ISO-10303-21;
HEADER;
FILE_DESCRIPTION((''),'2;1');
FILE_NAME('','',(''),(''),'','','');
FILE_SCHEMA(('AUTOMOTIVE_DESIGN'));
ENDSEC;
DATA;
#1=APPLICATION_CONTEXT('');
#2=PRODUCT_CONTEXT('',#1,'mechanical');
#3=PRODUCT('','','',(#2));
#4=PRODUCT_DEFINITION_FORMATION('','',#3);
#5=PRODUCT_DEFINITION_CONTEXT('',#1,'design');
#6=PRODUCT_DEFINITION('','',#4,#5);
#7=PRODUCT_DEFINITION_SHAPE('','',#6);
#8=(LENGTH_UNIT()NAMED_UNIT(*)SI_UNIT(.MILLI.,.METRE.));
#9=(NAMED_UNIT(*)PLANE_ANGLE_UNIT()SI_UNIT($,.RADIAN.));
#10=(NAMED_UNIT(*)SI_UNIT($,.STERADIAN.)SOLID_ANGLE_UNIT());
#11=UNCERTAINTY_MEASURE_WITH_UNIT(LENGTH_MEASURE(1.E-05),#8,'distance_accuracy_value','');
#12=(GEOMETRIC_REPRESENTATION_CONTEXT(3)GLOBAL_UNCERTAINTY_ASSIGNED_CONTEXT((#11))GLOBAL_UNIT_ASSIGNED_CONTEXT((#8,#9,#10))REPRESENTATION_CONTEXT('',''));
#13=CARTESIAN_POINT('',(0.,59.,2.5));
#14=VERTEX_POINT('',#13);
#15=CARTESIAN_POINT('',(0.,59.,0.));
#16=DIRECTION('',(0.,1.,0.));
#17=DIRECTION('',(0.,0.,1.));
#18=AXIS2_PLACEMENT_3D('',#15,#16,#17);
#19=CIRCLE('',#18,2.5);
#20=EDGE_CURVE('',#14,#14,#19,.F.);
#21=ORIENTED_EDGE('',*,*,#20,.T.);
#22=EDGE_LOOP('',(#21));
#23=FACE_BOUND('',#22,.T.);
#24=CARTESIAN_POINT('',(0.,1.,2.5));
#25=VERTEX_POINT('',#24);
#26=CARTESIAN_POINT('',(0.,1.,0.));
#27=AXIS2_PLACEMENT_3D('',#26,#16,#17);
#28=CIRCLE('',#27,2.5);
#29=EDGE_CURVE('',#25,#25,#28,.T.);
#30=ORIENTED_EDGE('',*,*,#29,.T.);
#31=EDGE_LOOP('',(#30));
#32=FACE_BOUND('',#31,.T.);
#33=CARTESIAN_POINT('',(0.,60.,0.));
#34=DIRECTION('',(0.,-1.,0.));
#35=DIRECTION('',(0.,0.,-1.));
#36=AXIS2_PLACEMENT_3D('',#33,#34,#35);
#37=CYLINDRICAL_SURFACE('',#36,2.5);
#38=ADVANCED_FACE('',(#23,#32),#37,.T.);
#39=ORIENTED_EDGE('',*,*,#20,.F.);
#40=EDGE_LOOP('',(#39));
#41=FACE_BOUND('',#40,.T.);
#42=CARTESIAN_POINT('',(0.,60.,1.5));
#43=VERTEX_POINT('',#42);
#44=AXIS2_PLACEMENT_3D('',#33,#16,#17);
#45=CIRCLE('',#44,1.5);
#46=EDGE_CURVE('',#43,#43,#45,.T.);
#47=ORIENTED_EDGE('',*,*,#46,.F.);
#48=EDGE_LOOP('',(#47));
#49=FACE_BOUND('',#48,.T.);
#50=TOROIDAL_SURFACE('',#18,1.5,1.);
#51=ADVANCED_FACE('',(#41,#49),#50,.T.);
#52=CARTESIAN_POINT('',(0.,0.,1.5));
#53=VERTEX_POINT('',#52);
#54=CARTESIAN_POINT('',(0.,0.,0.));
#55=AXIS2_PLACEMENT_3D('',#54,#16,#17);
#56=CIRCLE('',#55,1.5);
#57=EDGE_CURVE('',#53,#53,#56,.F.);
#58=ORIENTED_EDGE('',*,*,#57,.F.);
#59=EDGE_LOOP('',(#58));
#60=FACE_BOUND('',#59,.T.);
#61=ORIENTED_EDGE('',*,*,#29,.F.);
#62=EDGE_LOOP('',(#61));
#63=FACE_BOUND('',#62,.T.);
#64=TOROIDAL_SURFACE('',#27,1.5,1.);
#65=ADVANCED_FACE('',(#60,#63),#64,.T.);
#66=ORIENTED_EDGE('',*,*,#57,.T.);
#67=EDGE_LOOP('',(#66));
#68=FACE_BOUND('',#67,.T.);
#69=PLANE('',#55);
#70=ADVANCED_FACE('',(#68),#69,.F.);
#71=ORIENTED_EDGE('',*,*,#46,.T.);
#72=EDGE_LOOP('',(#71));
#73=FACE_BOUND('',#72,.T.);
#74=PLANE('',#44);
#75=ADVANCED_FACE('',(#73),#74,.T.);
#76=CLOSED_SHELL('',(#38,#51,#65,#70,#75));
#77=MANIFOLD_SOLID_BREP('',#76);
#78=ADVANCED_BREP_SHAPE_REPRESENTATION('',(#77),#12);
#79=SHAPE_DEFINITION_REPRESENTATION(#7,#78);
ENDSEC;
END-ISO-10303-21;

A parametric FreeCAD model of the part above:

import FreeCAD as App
import Part
import Sketcher


def edges_at(feature, points):
    """Names of the edges that pass closest to the given points."""
    edges = feature.Shape.Edges
    near = lambda p: min(range(len(edges)), key=lambda i: edges[i].distToShape(Part.Vertex(*p))[0])
    return sorted({f"Edge{near(p) + 1}" for p in points})

doc = App.newDocument("Part")
body = doc.addObject("PartDesign::Body", "Body")

# Sketch on XZ plane
sketch1 = body.newObject("Sketcher::SketchObject", "Sketch")
sketch1.AttachmentSupport = (doc.getObject("XZ_Plane"), [""])
sketch1.MapMode = "FlatFace"
sketch1.addGeometry(Part.Circle(App.Vector(0, 0, 0), App.Vector(0, 0, 1), 2.5), False)
sketch1.addConstraint(Sketcher.Constraint("Coincident", 0, 3, -1, 1))
sketch1.addConstraint(Sketcher.Constraint("Diameter", 0, 5.0))
pad1 = body.newObject("PartDesign::Pad", "Pad")
pad1.Profile = sketch1
pad1.Length = 60
pad1.Reversed = True
doc.recompute()

fillet = body.newObject("PartDesign::Fillet", "Fillet")
fillet.Base = (pad1, edges_at(pad1, [(0, 0, -2.5), (0, 60, -2.5)]))
fillet.Radius = 1

doc.recompute()
